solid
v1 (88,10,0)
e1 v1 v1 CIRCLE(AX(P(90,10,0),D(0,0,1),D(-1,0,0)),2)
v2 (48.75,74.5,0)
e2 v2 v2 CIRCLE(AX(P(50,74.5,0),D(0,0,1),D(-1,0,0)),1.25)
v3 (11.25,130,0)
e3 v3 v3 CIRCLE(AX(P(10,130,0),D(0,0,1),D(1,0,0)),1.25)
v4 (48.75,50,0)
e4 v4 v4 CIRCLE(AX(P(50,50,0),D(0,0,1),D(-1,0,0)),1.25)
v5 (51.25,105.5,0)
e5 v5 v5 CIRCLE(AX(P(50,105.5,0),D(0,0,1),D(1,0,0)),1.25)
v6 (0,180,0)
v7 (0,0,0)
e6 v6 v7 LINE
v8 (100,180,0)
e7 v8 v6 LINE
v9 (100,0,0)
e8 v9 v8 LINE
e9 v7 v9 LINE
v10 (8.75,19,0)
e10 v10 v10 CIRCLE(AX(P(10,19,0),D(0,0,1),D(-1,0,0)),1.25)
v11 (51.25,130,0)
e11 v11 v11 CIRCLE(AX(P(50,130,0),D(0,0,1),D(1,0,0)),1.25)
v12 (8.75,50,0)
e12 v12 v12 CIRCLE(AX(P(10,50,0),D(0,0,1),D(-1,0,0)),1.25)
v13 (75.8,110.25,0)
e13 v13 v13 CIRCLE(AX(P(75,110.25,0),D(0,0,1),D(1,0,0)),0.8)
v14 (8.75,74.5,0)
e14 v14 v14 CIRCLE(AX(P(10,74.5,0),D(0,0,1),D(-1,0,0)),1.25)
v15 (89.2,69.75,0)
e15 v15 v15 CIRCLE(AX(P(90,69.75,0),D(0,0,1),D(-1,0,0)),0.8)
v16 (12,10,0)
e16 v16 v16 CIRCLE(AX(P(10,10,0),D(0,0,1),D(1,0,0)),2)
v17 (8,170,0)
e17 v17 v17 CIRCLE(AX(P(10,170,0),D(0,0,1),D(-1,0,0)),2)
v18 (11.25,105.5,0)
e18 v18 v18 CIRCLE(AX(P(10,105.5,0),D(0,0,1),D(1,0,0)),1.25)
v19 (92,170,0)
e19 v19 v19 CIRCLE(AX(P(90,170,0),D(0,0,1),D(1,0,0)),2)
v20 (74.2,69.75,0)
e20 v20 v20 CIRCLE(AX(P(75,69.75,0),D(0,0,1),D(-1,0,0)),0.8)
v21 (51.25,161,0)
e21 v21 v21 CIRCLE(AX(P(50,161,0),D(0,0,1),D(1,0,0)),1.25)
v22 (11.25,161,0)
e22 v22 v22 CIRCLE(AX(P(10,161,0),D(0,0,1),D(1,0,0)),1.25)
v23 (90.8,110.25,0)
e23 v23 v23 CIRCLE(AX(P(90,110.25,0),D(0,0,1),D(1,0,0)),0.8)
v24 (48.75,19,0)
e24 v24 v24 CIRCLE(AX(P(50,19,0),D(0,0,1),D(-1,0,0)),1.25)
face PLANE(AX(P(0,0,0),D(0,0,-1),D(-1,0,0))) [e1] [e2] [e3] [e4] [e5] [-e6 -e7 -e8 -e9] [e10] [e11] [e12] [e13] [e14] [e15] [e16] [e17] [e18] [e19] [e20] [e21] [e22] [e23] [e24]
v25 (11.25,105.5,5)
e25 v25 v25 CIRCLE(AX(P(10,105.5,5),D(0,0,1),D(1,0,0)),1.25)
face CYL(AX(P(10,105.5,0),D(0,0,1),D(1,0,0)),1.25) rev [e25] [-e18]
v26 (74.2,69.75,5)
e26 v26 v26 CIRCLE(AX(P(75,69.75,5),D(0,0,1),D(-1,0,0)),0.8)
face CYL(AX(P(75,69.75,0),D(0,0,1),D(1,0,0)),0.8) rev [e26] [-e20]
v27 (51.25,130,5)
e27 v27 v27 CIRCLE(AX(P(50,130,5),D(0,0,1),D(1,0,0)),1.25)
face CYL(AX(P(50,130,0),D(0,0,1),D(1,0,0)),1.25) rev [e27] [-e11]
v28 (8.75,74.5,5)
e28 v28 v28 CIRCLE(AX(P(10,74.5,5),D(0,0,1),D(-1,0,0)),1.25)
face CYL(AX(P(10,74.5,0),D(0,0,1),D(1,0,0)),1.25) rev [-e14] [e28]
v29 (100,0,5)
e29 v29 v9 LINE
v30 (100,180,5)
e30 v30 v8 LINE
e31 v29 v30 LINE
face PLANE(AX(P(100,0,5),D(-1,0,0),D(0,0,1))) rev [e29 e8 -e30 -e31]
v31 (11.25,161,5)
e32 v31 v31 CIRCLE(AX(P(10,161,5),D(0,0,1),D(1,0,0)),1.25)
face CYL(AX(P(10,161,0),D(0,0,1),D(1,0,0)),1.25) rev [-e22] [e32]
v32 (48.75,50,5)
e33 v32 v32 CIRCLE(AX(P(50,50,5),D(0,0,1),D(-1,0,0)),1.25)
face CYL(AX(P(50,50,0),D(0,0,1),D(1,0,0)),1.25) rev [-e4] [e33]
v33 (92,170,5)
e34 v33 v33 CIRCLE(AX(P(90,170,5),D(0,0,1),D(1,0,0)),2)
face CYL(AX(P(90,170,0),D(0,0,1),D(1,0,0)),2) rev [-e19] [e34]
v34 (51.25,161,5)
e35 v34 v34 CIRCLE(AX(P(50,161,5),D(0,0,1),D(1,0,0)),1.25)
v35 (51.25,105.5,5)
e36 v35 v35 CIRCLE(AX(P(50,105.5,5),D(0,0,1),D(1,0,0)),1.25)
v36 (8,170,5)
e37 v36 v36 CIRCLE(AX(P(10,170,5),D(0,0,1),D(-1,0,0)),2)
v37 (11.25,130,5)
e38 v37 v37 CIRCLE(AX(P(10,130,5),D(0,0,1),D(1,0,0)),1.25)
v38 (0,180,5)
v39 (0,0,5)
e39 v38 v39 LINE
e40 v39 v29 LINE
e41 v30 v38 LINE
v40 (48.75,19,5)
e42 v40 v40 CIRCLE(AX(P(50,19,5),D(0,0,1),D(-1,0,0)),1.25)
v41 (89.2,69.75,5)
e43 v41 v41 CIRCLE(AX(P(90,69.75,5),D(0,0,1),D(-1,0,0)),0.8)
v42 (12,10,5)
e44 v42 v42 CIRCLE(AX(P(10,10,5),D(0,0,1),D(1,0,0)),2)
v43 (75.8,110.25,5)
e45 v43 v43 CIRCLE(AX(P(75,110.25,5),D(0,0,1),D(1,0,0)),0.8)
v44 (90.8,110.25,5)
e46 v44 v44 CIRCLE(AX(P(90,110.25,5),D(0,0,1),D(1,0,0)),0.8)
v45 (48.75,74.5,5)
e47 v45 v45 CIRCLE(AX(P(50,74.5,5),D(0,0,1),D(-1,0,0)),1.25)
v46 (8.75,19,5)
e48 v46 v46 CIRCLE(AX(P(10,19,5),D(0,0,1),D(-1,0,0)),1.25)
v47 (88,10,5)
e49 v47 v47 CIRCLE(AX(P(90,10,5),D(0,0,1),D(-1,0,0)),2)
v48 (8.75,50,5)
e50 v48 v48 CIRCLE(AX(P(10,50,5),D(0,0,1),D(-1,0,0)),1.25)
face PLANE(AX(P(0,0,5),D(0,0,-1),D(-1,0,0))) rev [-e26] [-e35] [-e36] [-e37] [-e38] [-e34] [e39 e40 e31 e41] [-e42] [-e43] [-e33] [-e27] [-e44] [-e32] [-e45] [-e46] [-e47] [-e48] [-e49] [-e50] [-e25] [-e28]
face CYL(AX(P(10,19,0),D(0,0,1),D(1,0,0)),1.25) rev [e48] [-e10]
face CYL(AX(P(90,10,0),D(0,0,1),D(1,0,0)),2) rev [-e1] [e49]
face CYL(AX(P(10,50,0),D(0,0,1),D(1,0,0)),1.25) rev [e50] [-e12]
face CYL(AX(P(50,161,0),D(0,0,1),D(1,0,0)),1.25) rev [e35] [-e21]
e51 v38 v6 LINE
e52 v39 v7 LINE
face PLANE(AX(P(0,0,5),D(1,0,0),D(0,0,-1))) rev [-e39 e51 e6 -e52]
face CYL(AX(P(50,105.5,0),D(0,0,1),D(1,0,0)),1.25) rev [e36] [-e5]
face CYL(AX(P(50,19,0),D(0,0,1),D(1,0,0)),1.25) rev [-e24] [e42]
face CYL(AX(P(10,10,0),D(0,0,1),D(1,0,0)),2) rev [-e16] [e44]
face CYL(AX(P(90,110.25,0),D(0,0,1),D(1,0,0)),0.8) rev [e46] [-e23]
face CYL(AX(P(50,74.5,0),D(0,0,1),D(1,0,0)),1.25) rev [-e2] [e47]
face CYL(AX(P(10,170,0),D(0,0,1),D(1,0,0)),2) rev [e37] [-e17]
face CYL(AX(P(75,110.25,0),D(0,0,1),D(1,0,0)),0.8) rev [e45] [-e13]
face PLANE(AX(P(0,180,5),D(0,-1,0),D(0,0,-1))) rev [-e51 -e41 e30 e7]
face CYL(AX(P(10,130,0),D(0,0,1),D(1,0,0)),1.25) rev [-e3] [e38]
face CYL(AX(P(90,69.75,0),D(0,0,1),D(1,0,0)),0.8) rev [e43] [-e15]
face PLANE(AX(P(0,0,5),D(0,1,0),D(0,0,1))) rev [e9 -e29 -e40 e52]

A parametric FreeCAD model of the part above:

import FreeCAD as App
import Part
import Sketcher
from FreeCAD import Vector
Q = App.Units.Quantity

doc = App.newDocument("Part")
body = doc.addObject("PartDesign::Body", "Body")

# Sketch on XY plane
sketch1 = body.newObject("Sketcher::SketchObject", "Sketch")
sketch1.AttachmentSupport = (doc.getObject("XY_Plane"), [""])
sketch1.MapMode = "FlatFace"
sketch1.addGeometry([
    Part.LineSegment(Vector(0, 180, 0), Vector(0, 0, 0)),
    Part.LineSegment(Vector(0, 0, 0), Vector(100, 0, 0)),
    Part.LineSegment(Vector(100, 0, 0), Vector(100, 180, 0)),
    Part.LineSegment(Vector(100, 180, 0), Vector(0, 180, 0)),
], False)
sketch1.addConstraint([
    Sketcher.Constraint("Coincident", 0, 2, 1, 1),
    Sketcher.Constraint("Coincident", 1, 2, 2, 1),
    Sketcher.Constraint("Coincident", 2, 2, 3, 1),
    Sketcher.Constraint("Coincident", 3, 2, 0, 1),
    Sketcher.Constraint("Vertical", 0),
    Sketcher.Constraint("Horizontal", 1),
    Sketcher.Constraint("Vertical", 2),
    Sketcher.Constraint("Horizontal", 3),
    Sketcher.Constraint("Coincident", 0, 2, -1, 1),
    Sketcher.Constraint("DistanceX", 1, 1, 1, 2, Q("100 mm")),
    Sketcher.Constraint("DistanceY", 0, 2, 0, 1, Q("180 mm")),
])
pad1 = body.newObject("PartDesign::Pad", "Pad")
pad1.Profile = sketch1
pad1.Length = 5

# Sketch on XY plane
sketch2 = body.newObject("Sketcher::SketchObject", "Sketch001")
sketch2.AttachmentSupport = (doc.getObject("XY_Plane"), [""])
sketch2.MapMode = "FlatFace"
sketch2.AttachmentOffset = App.Placement(Vector(0, 0, 5), App.Rotation())
sketch2.addGeometry([
    Part.Circle(Vector(10, 105.5, 0), Vector(0, 0, 1), 1.2),  # 0
    Part.Circle(Vector(50, 105.5, 0), Vector(0, 0, 1), 1.2),  # 1
    Part.Circle(Vector(50, 74.5, 0), Vector(0, 0, 1), 1.2),  # 2
    Part.Circle(Vector(10, 74.5, 0), Vector(0, 0, 1), 1.2),  # 3
    Part.Circle(Vector(10, 130, 0), Vector(0, 0, 1), 1.2),  # 4
    Part.Circle(Vector(50, 130, 0), Vector(0, 0, 1), 1.2),  # 5
    Part.Circle(Vector(50, 161, 0), Vector(0, 0, 1), 1.2),  # 6
    Part.Circle(Vector(10, 161, 0), Vector(0, 0, 1), 1.2),  # 7
    Part.Circle(Vector(10, 19, 0), Vector(0, 0, 1), 1.2),  # 8
    Part.Circle(Vector(50, 19, 0), Vector(0, 0, 1), 1.2),  # 9
    Part.Circle(Vector(50, 50, 0), Vector(0, 0, 1), 1.2),  # 10
    Part.Circle(Vector(10, 50, 0), Vector(0, 0, 1), 1.2),  # 11
    Part.Circle(Vector(75, 110.2, 0), Vector(0, 0, 1), 0.8),  # 12
    Part.Circle(Vector(90, 110.2, 0), Vector(0, 0, 1), 0.8),  # 13
    Part.Circle(Vector(90, 69.8, 0), Vector(0, 0, 1), 0.8),  # 14
    Part.Circle(Vector(75, 69.8, 0), Vector(0, 0, 1), 0.8),  # 15
    Part.Circle(Vector(90, 170, 0), Vector(0, 0, 1), 2),  # 16
    Part.Circle(Vector(90, 10, 0), Vector(0, 0, 1), 2),  # 17
    Part.Circle(Vector(10, 170, 0), Vector(0, 0, 1), 2),  # 18
    Part.Circle(Vector(10, 10, 0), Vector(0, 0, 1), 2),  # 19
], False)
sketch2.addConstraint([
    Sketcher.Constraint("Equal", 0, 1),
    Sketcher.Constraint("Equal", 1, 2),
    Sketcher.Constraint("Equal", 2, 3),
    Sketcher.Constraint("Equal", 3, 4),
    Sketcher.Constraint("Equal", 4, 5),
    Sketcher.Constraint("Equal", 5, 6),
    Sketcher.Constraint("Equal", 6, 7),
    Sketcher.Constraint("Equal", 7, 8),
    Sketcher.Constraint("Equal", 8, 9),
    Sketcher.Constraint("Equal", 9, 10),
    Sketcher.Constraint("Equal", 10, 11),
    Sketcher.Constraint("Equal", 12, 13),
    Sketcher.Constraint("Equal", 13, 14),
    Sketcher.Constraint("Equal", 14, 15),
    Sketcher.Constraint("Equal", 16, 17),
    Sketcher.Constraint("Equal", 17, 18),
    Sketcher.Constraint("Equal", 18, 19),
    Sketcher.Constraint("Horizontal", 0, 3, 1, 3),
    Sketcher.Constraint("Horizontal", 2, 3, 3, 3),
    Sketcher.Constraint("Horizontal", 4, 3, 5, 3),
    Sketcher.Constraint("Horizontal", 6, 3, 7, 3),
    Sketcher.Constraint("Horizontal", 8, 3, 9, 3),
    Sketcher.Constraint("Horizontal", 10, 3, 11, 3),
    Sketcher.Constraint("Horizontal", 12, 3, 13, 3),
    Sketcher.Constraint("Horizontal", 14, 3, 15, 3),
    Sketcher.Constraint("Horizontal", 16, 3, 18, 3),
    Sketcher.Constraint("Horizontal", 17, 3, 19, 3),
    Sketcher.Constraint("Vertical", 1, 3, 2, 3),
    Sketcher.Constraint("Vertical", 0, 3, 3, 3),
    Sketcher.Constraint("Vertical", 3, 3, 4, 3),
    Sketcher.Constraint("Vertical", 2, 3, 5, 3),
    Sketcher.Constraint("Vertical", 5, 3, 6, 3),
    Sketcher.Constraint("Vertical", 4, 3, 7, 3),
    Sketcher.Constraint("Vertical", 7, 3, 8, 3),
    Sketcher.Constraint("Vertical", 6, 3, 9, 3),
    Sketcher.Constraint("Vertical", 9, 3, 10, 3),
    Sketcher.Constraint("Vertical", 8, 3, 11, 3),
    Sketcher.Constraint("Vertical", 13, 3, 14, 3),
    Sketcher.Constraint("Vertical", 12, 3, 15, 3),
    Sketcher.Constraint("Vertical", 14, 3, 16, 3),
    Sketcher.Constraint("Vertical", 16, 3, 17, 3),
    Sketcher.Constraint("Vertical", 11, 3, 18, 3),
    Sketcher.Constraint("Vertical", 18, 3, 19, 3),
    Sketcher.Constraint("Diameter", 16, Q("4 mm")),
    Sketcher.Constraint("Diameter", 0, Q("2.5 mm")),
    Sketcher.Constraint("Diameter", 12, Q("1.6 mm")),
    Sketcher.Constraint("DistanceX", -1, 1, 0, 3, Q("10 mm")),
    Sketcher.Constraint("DistanceX", -1, 1, 1, 3, Q("50 mm")),
    Sketcher.Constraint("DistanceY", -1, 1, 4, 3, Q("130 mm")),
    Sketcher.Constraint("DistanceY", -1, 1, 6, 3, Q("161 mm")),
    Sketcher.Constraint("DistanceY", -1, 1, 8, 3, Q("19 mm")),
    Sketcher.Constraint("DistanceY", -1, 1, 10, 3, Q("50 mm")),
    Sketcher.Constraint("DistanceX", -1, 1, 12, 3, Q("75 mm")),
    Sketcher.Constraint("DistanceX", -1, 1, 13, 3, Q("90 mm")),
    Sketcher.Constraint("DistanceY", -1, 1, 16, 3, Q("170 mm")),
    Sketcher.Constraint("DistanceY", -1, 1, 17, 3, Q("10 mm")),
    Sketcher.Constraint("DistanceY", 2, 3, 1, 3, Q("31 mm")),
    Sketcher.Constraint("DistanceY", -1, 1, 0, 3, Q("105.5 mm")),
    Sketcher.Constraint("DistanceY", 14, 3, 13, 3, Q("40.5 mm")),
    Sketcher.Constraint("DistanceY", -1, 1, 12, 3, Q("110.25 mm")),
])
pocket1 = body.newObject("PartDesign::Pocket", "Pocket")
pocket1.Profile = sketch2
pocket1.Length = 5

doc.recompute()
